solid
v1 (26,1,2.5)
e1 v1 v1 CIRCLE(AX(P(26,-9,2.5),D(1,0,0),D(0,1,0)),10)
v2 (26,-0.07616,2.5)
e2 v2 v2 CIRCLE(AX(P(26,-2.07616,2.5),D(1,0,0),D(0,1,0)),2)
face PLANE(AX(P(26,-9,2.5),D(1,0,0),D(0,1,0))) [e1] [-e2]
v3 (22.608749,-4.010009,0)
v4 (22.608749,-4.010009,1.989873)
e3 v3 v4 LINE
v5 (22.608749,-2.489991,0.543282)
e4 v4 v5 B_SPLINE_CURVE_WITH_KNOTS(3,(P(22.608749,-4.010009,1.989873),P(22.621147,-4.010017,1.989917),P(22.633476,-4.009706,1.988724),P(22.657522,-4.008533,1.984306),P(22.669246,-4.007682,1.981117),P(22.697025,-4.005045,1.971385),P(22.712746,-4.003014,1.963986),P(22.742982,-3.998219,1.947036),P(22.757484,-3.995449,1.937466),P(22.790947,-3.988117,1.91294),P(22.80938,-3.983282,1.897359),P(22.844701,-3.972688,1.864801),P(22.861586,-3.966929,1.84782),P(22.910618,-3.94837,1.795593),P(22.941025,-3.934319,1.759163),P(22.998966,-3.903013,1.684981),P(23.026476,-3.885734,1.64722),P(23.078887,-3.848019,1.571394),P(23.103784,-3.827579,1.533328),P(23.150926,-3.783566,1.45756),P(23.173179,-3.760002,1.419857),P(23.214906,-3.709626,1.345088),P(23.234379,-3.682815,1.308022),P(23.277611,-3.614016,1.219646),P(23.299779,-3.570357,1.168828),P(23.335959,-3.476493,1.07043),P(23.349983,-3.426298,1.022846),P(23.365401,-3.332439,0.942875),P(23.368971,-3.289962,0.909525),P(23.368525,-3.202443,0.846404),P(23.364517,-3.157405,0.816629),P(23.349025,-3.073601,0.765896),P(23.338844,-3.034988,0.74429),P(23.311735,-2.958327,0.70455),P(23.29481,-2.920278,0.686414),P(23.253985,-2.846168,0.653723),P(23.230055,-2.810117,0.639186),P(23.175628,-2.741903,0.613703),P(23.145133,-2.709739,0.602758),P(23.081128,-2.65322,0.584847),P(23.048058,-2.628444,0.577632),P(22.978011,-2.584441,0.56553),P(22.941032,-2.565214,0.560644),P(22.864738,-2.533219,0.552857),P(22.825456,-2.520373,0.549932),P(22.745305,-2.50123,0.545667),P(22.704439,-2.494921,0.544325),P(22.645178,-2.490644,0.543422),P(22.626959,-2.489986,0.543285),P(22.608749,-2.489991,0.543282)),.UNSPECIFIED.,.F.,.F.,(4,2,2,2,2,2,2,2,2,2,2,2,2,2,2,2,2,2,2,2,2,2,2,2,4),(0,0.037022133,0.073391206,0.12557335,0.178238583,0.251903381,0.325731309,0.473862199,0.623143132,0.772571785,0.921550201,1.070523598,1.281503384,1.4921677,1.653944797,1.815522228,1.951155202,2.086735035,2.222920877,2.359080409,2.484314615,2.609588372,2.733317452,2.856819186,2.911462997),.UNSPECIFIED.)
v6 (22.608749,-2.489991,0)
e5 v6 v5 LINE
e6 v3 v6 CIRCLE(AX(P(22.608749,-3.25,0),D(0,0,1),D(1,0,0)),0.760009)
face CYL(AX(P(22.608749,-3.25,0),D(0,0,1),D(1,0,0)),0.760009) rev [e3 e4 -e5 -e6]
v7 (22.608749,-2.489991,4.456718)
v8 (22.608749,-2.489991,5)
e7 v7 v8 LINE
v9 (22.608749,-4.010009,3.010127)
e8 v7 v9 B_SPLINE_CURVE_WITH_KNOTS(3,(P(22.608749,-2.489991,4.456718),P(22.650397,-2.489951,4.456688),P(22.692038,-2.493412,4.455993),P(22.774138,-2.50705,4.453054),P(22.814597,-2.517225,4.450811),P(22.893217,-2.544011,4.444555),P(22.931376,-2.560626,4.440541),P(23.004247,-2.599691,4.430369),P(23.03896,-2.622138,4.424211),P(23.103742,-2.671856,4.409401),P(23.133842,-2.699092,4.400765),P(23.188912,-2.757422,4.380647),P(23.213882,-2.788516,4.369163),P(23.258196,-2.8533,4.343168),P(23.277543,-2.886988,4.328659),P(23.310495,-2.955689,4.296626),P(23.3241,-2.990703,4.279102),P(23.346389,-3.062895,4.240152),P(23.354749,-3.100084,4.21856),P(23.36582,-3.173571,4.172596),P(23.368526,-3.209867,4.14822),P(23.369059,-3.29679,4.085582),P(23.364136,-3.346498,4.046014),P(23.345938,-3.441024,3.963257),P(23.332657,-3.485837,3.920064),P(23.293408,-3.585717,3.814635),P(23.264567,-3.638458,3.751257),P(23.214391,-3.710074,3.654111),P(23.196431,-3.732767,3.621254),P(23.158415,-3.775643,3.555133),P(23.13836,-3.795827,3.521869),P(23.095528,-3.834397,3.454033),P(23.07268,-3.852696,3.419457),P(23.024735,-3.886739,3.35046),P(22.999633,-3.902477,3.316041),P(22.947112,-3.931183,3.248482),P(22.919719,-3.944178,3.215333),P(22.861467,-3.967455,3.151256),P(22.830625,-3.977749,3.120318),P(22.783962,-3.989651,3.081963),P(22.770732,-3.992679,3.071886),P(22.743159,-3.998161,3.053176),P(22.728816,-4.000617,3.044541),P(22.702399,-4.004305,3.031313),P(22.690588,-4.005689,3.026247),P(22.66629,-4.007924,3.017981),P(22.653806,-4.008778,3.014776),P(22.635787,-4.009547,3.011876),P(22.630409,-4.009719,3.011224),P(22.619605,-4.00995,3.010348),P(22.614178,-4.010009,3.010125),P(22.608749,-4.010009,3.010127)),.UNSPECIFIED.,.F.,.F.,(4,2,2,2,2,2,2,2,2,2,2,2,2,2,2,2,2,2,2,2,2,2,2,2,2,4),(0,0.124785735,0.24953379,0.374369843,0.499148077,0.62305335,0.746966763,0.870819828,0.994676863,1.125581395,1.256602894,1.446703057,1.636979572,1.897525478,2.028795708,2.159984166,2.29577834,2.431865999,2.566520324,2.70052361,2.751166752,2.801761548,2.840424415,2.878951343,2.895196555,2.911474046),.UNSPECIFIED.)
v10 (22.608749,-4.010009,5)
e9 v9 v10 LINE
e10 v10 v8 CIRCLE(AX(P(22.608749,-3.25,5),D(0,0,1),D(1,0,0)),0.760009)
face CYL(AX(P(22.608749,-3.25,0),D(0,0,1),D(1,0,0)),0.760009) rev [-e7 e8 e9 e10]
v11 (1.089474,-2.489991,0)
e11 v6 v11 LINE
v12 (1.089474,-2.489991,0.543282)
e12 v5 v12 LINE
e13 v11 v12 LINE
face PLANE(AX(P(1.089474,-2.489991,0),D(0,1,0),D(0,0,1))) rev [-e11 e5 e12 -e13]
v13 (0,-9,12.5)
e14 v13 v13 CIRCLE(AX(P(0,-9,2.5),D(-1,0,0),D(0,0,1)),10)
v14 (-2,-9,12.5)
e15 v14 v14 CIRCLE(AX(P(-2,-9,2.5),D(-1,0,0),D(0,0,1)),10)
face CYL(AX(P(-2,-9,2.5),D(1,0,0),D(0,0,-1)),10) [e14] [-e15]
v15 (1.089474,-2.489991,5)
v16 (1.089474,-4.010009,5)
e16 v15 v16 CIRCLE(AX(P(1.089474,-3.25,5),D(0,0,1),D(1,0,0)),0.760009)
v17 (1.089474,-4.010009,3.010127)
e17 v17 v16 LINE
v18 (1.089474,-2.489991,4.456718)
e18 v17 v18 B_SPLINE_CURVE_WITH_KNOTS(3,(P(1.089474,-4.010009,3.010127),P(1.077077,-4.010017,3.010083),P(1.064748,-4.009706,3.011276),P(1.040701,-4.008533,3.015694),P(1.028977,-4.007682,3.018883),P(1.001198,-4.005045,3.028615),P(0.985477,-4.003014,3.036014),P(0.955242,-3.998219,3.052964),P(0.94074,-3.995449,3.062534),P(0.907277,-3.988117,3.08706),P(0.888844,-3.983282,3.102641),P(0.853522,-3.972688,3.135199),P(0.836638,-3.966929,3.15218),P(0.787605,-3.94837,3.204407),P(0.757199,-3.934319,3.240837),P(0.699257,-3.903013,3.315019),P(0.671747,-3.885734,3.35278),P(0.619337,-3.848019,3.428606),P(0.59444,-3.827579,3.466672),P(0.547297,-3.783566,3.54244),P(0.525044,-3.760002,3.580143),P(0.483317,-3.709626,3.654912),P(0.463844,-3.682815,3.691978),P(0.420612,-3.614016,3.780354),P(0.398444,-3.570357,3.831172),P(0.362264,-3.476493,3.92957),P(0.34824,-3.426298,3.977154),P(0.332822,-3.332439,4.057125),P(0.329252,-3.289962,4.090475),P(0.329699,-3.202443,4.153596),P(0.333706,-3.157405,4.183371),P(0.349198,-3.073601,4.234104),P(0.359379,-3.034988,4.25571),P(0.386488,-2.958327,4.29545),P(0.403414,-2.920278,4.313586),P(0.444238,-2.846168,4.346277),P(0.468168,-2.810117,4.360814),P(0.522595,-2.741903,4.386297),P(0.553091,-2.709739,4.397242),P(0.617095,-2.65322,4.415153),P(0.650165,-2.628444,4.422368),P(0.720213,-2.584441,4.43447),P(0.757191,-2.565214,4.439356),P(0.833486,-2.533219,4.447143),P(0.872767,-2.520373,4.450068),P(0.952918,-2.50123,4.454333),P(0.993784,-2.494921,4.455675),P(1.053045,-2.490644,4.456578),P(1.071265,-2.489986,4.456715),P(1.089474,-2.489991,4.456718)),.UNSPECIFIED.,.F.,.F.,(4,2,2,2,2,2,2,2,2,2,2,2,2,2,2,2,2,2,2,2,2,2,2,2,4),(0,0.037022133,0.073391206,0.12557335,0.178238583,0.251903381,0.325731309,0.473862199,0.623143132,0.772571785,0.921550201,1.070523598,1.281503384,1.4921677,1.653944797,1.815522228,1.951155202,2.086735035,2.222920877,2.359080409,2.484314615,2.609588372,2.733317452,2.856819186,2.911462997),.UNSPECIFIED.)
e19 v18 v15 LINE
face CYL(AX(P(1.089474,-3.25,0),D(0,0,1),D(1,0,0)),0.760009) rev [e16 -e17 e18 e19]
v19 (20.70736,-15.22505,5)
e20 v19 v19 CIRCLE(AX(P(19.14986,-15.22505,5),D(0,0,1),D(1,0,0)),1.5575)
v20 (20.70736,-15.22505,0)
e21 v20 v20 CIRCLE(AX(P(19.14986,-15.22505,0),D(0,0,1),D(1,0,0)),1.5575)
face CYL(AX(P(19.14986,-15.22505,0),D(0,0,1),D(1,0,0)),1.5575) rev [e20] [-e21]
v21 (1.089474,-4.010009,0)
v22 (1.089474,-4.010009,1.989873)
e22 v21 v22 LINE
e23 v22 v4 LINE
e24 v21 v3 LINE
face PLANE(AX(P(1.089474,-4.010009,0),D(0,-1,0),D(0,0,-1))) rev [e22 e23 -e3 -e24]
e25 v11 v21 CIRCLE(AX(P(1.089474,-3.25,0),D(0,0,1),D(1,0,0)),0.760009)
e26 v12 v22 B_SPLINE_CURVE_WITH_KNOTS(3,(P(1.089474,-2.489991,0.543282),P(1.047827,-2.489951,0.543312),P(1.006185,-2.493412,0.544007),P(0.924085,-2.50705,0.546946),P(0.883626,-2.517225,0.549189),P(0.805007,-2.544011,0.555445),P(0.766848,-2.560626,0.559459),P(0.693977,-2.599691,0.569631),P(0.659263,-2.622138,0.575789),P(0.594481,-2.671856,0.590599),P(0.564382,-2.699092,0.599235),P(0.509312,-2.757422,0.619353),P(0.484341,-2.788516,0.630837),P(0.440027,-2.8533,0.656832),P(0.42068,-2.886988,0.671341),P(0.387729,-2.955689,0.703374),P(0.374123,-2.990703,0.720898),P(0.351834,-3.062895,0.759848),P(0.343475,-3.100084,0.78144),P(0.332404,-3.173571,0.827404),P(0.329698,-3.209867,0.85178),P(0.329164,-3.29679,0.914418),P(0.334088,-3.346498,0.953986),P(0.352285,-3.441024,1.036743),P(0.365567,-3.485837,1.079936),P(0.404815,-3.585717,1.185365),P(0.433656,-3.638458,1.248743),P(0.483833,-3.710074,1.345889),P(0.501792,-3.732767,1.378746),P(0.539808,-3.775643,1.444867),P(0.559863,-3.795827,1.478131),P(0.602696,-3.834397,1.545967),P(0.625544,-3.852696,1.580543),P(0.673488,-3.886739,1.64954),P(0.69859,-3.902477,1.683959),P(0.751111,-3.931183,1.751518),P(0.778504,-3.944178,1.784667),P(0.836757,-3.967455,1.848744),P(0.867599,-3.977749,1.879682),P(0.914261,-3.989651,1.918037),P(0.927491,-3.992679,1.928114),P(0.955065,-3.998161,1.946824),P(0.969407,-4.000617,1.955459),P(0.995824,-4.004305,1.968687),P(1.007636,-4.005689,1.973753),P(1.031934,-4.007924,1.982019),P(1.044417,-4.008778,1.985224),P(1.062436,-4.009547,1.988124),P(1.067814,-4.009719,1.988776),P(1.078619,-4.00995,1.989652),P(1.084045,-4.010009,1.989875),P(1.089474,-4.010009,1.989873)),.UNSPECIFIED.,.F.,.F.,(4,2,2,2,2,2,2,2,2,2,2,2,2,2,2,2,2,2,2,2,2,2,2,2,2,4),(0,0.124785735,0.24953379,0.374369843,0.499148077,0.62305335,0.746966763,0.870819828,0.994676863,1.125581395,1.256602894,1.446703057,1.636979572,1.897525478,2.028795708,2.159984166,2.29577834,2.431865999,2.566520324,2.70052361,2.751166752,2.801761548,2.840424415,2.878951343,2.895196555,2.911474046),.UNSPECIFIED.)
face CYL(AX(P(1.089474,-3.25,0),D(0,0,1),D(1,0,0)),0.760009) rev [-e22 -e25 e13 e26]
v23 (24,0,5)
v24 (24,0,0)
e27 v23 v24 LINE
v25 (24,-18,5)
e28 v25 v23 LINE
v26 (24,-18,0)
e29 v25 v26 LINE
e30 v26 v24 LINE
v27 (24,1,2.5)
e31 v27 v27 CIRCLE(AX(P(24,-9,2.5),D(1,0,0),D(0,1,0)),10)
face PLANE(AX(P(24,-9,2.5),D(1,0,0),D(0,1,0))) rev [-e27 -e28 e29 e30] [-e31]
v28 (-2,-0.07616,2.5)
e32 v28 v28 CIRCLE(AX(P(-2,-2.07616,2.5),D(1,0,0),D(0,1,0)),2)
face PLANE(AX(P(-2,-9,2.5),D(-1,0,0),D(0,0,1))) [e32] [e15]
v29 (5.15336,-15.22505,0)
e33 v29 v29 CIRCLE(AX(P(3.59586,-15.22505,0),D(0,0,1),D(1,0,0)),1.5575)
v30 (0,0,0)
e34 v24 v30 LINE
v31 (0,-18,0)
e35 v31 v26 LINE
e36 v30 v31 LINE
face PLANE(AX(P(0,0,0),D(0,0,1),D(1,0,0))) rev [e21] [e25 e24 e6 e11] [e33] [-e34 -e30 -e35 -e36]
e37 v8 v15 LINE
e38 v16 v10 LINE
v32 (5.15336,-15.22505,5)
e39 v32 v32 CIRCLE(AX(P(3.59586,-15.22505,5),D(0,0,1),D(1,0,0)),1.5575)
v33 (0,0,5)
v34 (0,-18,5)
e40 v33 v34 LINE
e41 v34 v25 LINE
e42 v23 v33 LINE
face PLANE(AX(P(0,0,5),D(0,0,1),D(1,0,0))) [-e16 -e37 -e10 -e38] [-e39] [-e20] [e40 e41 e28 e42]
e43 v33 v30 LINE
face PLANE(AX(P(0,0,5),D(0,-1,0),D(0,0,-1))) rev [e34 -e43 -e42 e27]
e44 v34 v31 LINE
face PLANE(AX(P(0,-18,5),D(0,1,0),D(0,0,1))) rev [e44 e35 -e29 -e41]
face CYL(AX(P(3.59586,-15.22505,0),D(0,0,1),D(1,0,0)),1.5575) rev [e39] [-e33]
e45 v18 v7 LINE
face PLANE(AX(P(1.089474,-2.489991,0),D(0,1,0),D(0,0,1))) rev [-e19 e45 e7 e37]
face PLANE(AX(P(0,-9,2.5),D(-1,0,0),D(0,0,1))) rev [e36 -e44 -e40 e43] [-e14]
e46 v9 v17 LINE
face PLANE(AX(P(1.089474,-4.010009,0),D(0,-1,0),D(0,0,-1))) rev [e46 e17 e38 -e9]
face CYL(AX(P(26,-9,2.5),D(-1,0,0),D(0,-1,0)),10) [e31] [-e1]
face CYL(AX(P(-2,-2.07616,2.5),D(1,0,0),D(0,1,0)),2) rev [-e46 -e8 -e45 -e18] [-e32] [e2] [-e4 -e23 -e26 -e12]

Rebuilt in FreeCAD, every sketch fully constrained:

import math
import FreeCAD as App
import Part
import Sketcher

V = App.Vector
Q = App.Units.Quantity

doc = App.newDocument("Part")
body = doc.addObject("PartDesign::Body", "Body")

sketch1 = body.newObject("Sketcher::SketchObject", "Sketch")
sketch1.AttachmentSupport = (doc.getObject("XY_Plane"), [""])
sketch1.MapMode = "FlatFace"
sketch1.addGeometry(Part.LineSegment(V(0, 0, 0), V(0, -18, 0)), False)
sketch1.addGeometry(Part.LineSegment(V(0, -18, 0), V(24, -18, 0)), False)
sketch1.addGeometry(Part.LineSegment(V(24, -18, 0), V(24, 0, 0)), False)
sketch1.addGeometry(Part.LineSegment(V(24, 0, 0), V(0, 0, 0)), False)
sketch1.addConstraint(Sketcher.Constraint("Coincident", 0, 2, 1, 1))
sketch1.addConstraint(Sketcher.Constraint("Coincident", 1, 2, 2, 1))
sketch1.addConstraint(Sketcher.Constraint("Coincident", 2, 2, 3, 1))
sketch1.addConstraint(Sketcher.Constraint("Coincident", 3, 2, 0, 1))
sketch1.addConstraint(Sketcher.Constraint("Vertical", 0))
sketch1.addConstraint(Sketcher.Constraint("Horizontal", 1))
sketch1.addConstraint(Sketcher.Constraint("Vertical", 2))
sketch1.addConstraint(Sketcher.Constraint("Horizontal", 3))
sketch1.addConstraint(Sketcher.Constraint("Coincident", 3, 2, -1, 1))
sketch1.addConstraint(Sketcher.Constraint("DistanceX", 1, 1, 1, 2, Q("24 mm")))
sketch1.addConstraint(Sketcher.Constraint("DistanceY", 0, 2, 0, 1, Q("18 mm")))
pad1 = body.newObject("PartDesign::Pad", "Pad")
pad1.Profile = sketch1
pad1.Length = 5

sketch2 = body.newObject("Sketcher::SketchObject", "Sketch001")
sketch2.AttachmentSupport = (doc.getObject("XY_Plane"), [""])
sketch2.MapMode = "FlatFace"
sketch2.AttachmentOffset = App.Placement(V(0, 0, 5), App.Rotation())
sketch2.addGeometry(Part.Circle(V(3.6, -15.2, 0), V(0, 0, 1), 1.6), False)
sketch2.addGeometry(Part.Circle(V(19.1, -15.2, 0), V(0, 0, 1), 1.6), False)
sketch2.addConstraint(Sketcher.Constraint("Equal", 0, 1))
sketch2.addConstraint(Sketcher.Constraint("Horizontal", 0, 3, 1, 3))
sketch2.addConstraint(Sketcher.Constraint("Diameter", 0, Q("3.115 mm")))
sketch2.addConstraint(Sketcher.Constraint("DistanceX", 0, 3, 1, 3, Q("15.554 mm")))
sketch2.addConstraint(Sketcher.Constraint("DistanceX", -1, 1, 0, 3, Q("3.59586 mm")))
sketch2.addConstraint(Sketcher.Constraint("DistanceY", 0, 3, -1, 1, Q("15.22505 mm")))
pocket1 = body.newObject("PartDesign::Pocket", "Pocket")
pocket1.Profile = sketch2
pocket1.Type = "ThroughAll"

sketch3 = body.newObject("Sketcher::SketchObject", "Sketch002")
sketch3.AttachmentSupport = (doc.getObject("XY_Plane"), [""])
sketch3.MapMode = "FlatFace"
sketch3.AttachmentOffset = App.Placement(V(0, 0, 5), App.Rotation())
sketch3.addGeometry(Part.LineSegment(V(22.6, -2.5, 0), V(1.1, -2.5, 0)), False)
sketch3.addGeometry(Part.ArcOfCircle(Part.Circle(V(1.1, -3.2, 0), V(0, 0, 1), 0.8), math.radians(90), math.radians(270)), False)
sketch3.addGeometry(Part.LineSegment(V(1.1, -4, 0), V(22.6, -4, 0)), False)
sketch3.addGeometry(Part.ArcOfCircle(Part.Circle(V(22.6, -3.2, 0), V(0, 0, 1), 0.8), math.radians(-90), math.radians(90)), False)
sketch3.addConstraint(Sketcher.Constraint("Tangent", 0, 2, 1, 1))
sketch3.addConstraint(Sketcher.Constraint("Tangent", 1, 2, 2, 1))
sketch3.addConstraint(Sketcher.Constraint("Tangent", 2, 2, 3, 1))
sketch3.addConstraint(Sketcher.Constraint("Tangent", 3, 2, 0, 1))
sketch3.addConstraint(Sketcher.Constraint("Horizontal", 0))
sketch3.addConstraint(Sketcher.Constraint("Horizontal", 2))
sketch3.addConstraint(Sketcher.Constraint("DistanceY", 1, 3, -1, 1, Q("3.25 mm")))
sketch3.addConstraint(Sketcher.Constraint("Radius", 1, Q("0.760009 mm")))
sketch3.addConstraint(Sketcher.Constraint("DistanceX", 0, 2, 0, 1, Q("21.519275 mm")))
sketch3.addConstraint(Sketcher.Constraint("DistanceX", -1, 1, 3, 3, Q("22.608749 mm")))
pocket2 = body.newObject("PartDesign::Pocket", "Pocket001")
pocket2.Profile = sketch3
pocket2.Type = "ThroughAll"

sketch4 = body.newObject("Sketcher::SketchObject", "Sketch003")
sketch4.AttachmentSupport = (doc.getObject("YZ_Plane"), [""])
sketch4.MapMode = "FlatFace"
sketch4.addGeometry(Part.Circle(V(-9, 2, 0), V(0, 0, 1), 10), False)
sketch4.addConstraint(Sketcher.Constraint("Diameter", 0, Q("20 mm")))
sketch4.addConstraint(Sketcher.Constraint("DistanceX", 0, 3, -1, 1, Q("9 mm")))
sketch4.addConstraint(Sketcher.Constraint("DistanceY", -1, 1, 0, 3, Q("2.5 mm")))
pad2 = body.newObject("PartDesign::Pad", "Pad001")
pad2.Profile = sketch4
pad2.Length = 2
pad2.Reversed = True

sketch5 = body.newObject("Sketcher::SketchObject", "Sketch004")
sketch5.AttachmentSupport = (doc.getObject("YZ_Plane"), [""])
sketch5.MapMode = "FlatFace"
sketch5.AttachmentOffset = App.Placement(V(0, 0, 24), App.Rotation())
sketch5.addGeometry(Part.Circle(V(-9, 2, 0), V(0, 0, 1), 10), False)
sketch5.addConstraint(Sketcher.Constraint("Diameter", 0, Q("20 mm")))
sketch5.addConstraint(Sketcher.Constraint("DistanceX", 0, 3, -1, 1, Q("9 mm")))
sketch5.addConstraint(Sketcher.Constraint("DistanceY", -1, 1, 0, 3, Q("2.5 mm")))
pad3 = body.newObject("PartDesign::Pad", "Pad002")
pad3.Profile = sketch5
pad3.Length = 2

sketch6 = body.newObject("Sketcher::SketchObject", "Sketch005")
sketch6.AttachmentSupport = (doc.getObject("YZ_Plane"), [""])
sketch6.MapMode = "FlatFace"
sketch6.AttachmentOffset = App.Placement(V(0, 0, 26), App.Rotation())
sketch6.addGeometry(Part.Circle(V(-2.1, 2.5, 0), V(0, 0, 1), 2), False)
sketch6.addConstraint(Sketcher.Constraint("Diameter", 0, Q("4 mm")))
sketch6.addConstraint(Sketcher.Constraint("DistanceY", -1, 1, 0, 3, Q("2.5 mm")))
sketch6.addConstraint(Sketcher.Constraint("DistanceX", 0, 3, -1, 1, Q("2.07616 mm")))
pocket3 = body.newObject("PartDesign::Pocket", "Pocket002")
pocket3.Profile = sketch6
pocket3.Type = "ThroughAll"

doc.recompute()
